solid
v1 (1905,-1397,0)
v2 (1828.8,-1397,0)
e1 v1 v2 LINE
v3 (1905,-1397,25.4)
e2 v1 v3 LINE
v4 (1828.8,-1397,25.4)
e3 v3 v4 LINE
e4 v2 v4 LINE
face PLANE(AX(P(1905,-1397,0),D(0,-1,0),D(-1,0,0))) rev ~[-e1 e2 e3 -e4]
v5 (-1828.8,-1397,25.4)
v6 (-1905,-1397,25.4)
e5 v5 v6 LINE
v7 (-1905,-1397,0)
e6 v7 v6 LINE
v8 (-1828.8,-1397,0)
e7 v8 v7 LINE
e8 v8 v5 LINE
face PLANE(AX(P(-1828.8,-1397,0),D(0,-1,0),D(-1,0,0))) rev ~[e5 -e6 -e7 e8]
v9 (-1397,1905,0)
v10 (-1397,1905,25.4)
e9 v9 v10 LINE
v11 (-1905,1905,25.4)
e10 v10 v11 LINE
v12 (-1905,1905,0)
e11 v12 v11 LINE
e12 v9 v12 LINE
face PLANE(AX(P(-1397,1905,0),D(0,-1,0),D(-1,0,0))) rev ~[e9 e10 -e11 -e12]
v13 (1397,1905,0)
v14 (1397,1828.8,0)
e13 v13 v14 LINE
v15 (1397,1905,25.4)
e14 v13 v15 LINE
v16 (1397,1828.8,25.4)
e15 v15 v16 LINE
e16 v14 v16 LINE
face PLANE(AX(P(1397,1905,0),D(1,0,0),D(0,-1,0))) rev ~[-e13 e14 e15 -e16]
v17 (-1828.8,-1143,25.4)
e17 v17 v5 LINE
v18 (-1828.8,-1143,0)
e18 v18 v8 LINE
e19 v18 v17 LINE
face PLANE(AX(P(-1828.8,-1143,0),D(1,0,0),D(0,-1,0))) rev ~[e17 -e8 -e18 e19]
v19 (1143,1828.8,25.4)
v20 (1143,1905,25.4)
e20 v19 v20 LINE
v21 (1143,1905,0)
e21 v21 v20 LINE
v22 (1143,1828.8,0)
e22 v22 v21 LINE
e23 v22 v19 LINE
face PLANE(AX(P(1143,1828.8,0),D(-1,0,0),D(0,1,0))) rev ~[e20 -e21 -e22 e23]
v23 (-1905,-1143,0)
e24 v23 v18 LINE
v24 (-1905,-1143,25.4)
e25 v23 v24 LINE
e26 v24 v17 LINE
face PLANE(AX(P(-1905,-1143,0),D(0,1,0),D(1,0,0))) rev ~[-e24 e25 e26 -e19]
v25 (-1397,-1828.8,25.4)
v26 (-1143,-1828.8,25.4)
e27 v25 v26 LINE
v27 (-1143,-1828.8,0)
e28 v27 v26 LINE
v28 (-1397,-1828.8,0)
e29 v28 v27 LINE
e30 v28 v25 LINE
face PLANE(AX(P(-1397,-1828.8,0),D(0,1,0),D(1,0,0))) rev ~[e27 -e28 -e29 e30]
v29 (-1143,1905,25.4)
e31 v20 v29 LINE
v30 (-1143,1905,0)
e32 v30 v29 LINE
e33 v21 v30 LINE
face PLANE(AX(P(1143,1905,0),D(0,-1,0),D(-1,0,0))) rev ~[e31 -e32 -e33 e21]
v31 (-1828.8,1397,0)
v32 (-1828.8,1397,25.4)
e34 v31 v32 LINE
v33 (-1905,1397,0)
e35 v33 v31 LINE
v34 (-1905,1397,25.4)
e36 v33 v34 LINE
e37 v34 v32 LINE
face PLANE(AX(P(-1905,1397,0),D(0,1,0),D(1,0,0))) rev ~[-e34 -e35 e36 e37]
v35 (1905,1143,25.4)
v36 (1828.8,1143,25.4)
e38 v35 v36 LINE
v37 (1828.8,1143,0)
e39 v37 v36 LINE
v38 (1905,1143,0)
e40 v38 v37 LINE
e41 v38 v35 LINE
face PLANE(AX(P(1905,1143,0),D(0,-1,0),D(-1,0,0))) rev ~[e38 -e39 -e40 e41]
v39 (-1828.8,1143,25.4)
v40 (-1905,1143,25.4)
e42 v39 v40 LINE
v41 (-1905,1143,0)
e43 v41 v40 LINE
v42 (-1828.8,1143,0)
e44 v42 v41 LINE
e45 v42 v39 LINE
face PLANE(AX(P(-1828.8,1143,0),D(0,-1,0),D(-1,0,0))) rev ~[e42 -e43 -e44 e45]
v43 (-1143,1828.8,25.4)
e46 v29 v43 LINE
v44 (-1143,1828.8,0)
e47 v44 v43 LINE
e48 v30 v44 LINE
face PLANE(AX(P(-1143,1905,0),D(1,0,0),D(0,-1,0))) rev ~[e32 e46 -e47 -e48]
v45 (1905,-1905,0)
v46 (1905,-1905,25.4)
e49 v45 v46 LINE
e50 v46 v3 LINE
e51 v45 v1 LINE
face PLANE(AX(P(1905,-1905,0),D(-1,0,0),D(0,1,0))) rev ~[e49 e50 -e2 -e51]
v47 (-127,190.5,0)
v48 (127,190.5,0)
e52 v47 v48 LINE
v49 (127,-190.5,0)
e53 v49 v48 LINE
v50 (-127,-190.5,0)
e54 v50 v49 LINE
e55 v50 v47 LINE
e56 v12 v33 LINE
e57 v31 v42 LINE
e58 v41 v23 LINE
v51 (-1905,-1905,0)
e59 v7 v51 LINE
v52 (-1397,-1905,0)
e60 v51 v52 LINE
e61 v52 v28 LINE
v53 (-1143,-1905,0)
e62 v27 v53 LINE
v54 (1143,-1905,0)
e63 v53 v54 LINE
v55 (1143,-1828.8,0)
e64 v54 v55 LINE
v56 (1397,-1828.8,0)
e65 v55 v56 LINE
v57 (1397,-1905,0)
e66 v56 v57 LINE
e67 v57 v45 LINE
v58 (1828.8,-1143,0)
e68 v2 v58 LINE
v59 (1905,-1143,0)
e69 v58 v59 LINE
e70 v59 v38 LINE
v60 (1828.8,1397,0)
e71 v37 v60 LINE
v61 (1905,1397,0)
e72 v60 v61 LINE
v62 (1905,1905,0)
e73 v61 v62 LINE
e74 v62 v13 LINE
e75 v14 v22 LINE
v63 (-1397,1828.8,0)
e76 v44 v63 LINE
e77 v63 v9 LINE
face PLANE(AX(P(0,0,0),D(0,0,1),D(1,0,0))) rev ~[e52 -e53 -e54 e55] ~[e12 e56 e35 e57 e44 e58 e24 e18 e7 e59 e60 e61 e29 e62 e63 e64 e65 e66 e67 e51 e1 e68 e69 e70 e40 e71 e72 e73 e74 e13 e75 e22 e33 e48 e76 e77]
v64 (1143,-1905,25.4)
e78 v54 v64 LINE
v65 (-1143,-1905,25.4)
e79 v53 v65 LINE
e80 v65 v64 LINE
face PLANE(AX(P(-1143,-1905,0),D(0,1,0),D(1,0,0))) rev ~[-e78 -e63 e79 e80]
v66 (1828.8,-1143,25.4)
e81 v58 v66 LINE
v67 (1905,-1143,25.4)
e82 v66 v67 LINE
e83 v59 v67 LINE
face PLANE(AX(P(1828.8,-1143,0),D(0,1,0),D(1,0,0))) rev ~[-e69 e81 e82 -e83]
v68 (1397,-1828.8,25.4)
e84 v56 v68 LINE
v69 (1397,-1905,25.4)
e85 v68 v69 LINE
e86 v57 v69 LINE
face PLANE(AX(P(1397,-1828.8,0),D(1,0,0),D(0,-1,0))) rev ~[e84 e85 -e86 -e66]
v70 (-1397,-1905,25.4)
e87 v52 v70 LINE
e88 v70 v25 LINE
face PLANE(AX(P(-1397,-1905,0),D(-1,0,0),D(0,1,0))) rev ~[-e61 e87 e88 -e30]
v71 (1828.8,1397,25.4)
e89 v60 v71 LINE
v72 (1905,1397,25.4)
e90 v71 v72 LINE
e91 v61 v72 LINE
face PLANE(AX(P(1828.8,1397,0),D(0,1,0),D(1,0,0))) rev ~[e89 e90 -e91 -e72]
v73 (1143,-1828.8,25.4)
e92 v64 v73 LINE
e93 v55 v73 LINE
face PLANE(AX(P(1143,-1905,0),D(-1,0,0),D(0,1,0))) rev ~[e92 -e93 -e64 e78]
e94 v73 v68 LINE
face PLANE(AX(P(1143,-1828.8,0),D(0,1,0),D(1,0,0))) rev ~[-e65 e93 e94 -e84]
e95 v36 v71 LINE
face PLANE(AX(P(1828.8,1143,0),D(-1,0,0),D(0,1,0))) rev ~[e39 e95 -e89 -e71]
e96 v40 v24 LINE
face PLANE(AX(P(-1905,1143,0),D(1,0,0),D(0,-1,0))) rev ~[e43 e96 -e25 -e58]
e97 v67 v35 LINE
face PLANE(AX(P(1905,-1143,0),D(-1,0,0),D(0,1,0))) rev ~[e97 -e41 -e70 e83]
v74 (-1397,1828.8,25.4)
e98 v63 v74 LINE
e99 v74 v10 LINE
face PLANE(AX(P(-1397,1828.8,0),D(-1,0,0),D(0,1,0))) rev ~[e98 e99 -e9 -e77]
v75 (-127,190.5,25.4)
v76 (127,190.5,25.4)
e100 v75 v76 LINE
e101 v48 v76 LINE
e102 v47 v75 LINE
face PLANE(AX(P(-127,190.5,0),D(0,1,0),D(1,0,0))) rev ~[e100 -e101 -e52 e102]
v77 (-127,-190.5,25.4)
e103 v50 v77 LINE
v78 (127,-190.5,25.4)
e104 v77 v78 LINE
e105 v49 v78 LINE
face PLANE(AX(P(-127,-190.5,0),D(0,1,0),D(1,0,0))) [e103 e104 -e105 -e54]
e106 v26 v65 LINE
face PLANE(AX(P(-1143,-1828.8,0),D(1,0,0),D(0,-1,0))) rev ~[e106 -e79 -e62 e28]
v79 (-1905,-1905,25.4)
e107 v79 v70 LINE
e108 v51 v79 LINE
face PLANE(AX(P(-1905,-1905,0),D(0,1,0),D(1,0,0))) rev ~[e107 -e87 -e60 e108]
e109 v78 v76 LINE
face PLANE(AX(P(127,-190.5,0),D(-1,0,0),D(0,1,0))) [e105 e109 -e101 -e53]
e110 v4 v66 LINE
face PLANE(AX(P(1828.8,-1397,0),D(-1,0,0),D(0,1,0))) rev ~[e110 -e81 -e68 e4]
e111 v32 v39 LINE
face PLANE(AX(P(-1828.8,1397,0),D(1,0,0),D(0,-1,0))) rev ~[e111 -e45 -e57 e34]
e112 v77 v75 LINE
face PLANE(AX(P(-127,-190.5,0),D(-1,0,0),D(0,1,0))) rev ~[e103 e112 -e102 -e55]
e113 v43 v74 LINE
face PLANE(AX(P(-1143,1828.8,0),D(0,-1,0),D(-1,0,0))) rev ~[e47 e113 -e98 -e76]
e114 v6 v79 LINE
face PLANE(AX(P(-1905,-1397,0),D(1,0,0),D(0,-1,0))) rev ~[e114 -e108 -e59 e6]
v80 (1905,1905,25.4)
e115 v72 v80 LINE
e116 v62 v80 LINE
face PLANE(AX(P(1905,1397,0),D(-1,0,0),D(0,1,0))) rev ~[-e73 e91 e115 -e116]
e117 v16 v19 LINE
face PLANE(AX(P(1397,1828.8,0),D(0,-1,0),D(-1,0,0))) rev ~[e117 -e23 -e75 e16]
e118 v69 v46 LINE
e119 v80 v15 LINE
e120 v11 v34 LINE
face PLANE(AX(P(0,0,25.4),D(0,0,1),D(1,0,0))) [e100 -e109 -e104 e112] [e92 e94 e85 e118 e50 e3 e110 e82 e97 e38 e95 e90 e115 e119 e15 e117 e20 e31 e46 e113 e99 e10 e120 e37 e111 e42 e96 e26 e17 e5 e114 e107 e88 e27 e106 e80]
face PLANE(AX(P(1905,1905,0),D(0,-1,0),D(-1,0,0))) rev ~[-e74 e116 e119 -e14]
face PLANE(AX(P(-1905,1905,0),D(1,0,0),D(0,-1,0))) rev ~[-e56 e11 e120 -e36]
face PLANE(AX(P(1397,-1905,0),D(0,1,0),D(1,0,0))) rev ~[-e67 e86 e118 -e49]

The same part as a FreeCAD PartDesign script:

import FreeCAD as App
import Part
import Sketcher
Q = App.Units.Quantity


def add_polygon(sketch, points):
    """Adds a closed chain of lines whose ends are joined by coincident constraints."""
    first, n = sketch.GeometryCount, len(points)
    for a, b in zip(points, points[1:] + points[:1]):
        sketch.addGeometry(Part.LineSegment(App.Vector(*a, 0), App.Vector(*b, 0)), False)
    for i in range(n):
        sketch.addConstraint(Sketcher.Constraint("Coincident", first + i, 2, first + (i + 1) % n, 1))

doc = App.newDocument("Part")
body = doc.addObject("PartDesign::Body", "Body")

# Sketch on XY plane
sketch1 = body.newObject("Sketcher::SketchObject", "Sketch")
sketch1.AttachmentSupport = (doc.getObject("XY_Plane"), [""])
sketch1.MapMode = "FlatFace"
add_polygon(sketch1, [(1905, 1397), (1905, 1905), (1397, 1905), (1397, 1829), (1143, 1829), (1143, 1905), (-1143, 1905), (-1143, 1829), (-1397, 1829), (-1397, 1905), (-1905, 1905), (-1905, 1397), (-1829, 1397), (-1829, 1143), (-1905, 1143), (-1905, -1143), (-1829, -1143), (-1829, -1397), (-1905, -1397), (-1905, -1905), (-1397, -1905), (-1397, -1829), (-1143, -1829), (-1143, -1905), (1143, -1905), (1143, -1829), (1397, -1829), (1397, -1905), (1905, -1905), (1905, -1397), (1829, -1397), (1829, -1143), (1905, -1143), (1905, 1143), (1829, 1143), (1829, 1397)])  # lines 0-35
add_polygon(sketch1, [(127, -190), (-127, -190), (-127, 190), (127, 190)])  # lines 36-39
sketch1.addConstraint([
    Sketcher.Constraint("Vertical", 0),
    Sketcher.Constraint("Horizontal", 1),
    Sketcher.Constraint("Vertical", 2),
    Sketcher.Constraint("Horizontal", 3),
    Sketcher.Constraint("Vertical", 4),
    Sketcher.Constraint("Horizontal", 5),
    Sketcher.Constraint("Vertical", 6),
    Sketcher.Constraint("Horizontal", 7),
    Sketcher.Constraint("Vertical", 8),
    Sketcher.Constraint("Horizontal", 9),
    Sketcher.Constraint("Vertical", 10),
    Sketcher.Constraint("Horizontal", 11),
    Sketcher.Constraint("Vertical", 12),
    Sketcher.Constraint("Horizontal", 13),
    Sketcher.Constraint("Vertical", 14),
    Sketcher.Constraint("Horizontal", 15),
    Sketcher.Constraint("Vertical", 16),
    Sketcher.Constraint("Horizontal", 17),
    Sketcher.Constraint("Vertical", 18),
    Sketcher.Constraint("Horizontal", 19),
    Sketcher.Constraint("Vertical", 20),
    Sketcher.Constraint("Horizontal", 21),
    Sketcher.Constraint("Vertical", 22),
    Sketcher.Constraint("Horizontal", 23),
    Sketcher.Constraint("Vertical", 24),
    Sketcher.Constraint("Horizontal", 25),
    Sketcher.Constraint("Vertical", 26),
    Sketcher.Constraint("Horizontal", 27),
    Sketcher.Constraint("Vertical", 28),
    Sketcher.Constraint("Horizontal", 29),
    Sketcher.Constraint("Vertical", 30),
    Sketcher.Constraint("Horizontal", 31),
    Sketcher.Constraint("Vertical", 32),
    Sketcher.Constraint("Horizontal", 33),
    Sketcher.Constraint("Vertical", 34),
    Sketcher.Constraint("Horizontal", 35),
    Sketcher.Constraint("Horizontal", 36),
    Sketcher.Constraint("Vertical", 37),
    Sketcher.Constraint("Horizontal", 38),
    Sketcher.Constraint("Vertical", 39),
    Sketcher.Constraint("Symmetric", 0, 2, 18, 2, -1, 1),
    Sketcher.Constraint("Symmetric", 2, 2, 20, 2, -1, 1),
    Sketcher.Constraint("Symmetric", 4, 2, 22, 2, -1, 1),
    Sketcher.Constraint("Symmetric", 6, 2, 24, 2, -1, 1),
    Sketcher.Constraint("Symmetric", 8, 2, 26, 2, -1, 1),
    Sketcher.Constraint("Symmetric", 10, 2, 28, 2, -1, 1),
    Sketcher.Constraint("Symmetric", 12, 2, 30, 2, -1, 1),
    Sketcher.Constraint("Symmetric", 14, 2, 32, 2, -1, 1),
    Sketcher.Constraint("Symmetric", 16, 2, 34, 2, -1, 1),
    Sketcher.Constraint("Symmetric", 36, 2, 38, 2, -1, 1),
    Sketcher.Constraint("Symmetric", 3, 2, 6, 2, -2),
    Sketcher.Constraint("Symmetric", 1, 2, 8, 2, -2),
    Sketcher.Constraint("Symmetric", 17, 2, 28, 2, -2),
    Sketcher.Constraint("Symmetric", 15, 2, 30, 2, -2),
    Sketcher.Constraint("Horizontal", 1, 2, 4, 2),
    Sketcher.Constraint("Vertical", 10, 2, 13, 2),
    Sketcher.Constraint("Equal", 25, 36),
    Sketcher.Constraint("Equal", 27, 0),
    Sketcher.Constraint("Equal", 35, 2),
    Sketcher.Constraint("Equal", 38, 12),
    Sketcher.Constraint("Equal", 23, 14),
    Sketcher.Constraint("DistanceX", 1, 2, 1, 1, Q("20 in")),
    Sketcher.Constraint("DistanceX", 3, 2, 3, 1, Q("10 in")),
    Sketcher.Constraint("DistanceX", 5, 2, 5, 1, Q("90 in")),
    Sketcher.Constraint("DistanceX", 11, 1, 11, 2, Q("3 in")),
    Sketcher.Constraint("DistanceY", 37, 1, 37, 2, Q("15 in")),
])
pad1 = body.newObject("PartDesign::Pad", "Pad")
pad1.Profile = sketch1
pad1.Length = Q("1 in")

doc.recompute()
